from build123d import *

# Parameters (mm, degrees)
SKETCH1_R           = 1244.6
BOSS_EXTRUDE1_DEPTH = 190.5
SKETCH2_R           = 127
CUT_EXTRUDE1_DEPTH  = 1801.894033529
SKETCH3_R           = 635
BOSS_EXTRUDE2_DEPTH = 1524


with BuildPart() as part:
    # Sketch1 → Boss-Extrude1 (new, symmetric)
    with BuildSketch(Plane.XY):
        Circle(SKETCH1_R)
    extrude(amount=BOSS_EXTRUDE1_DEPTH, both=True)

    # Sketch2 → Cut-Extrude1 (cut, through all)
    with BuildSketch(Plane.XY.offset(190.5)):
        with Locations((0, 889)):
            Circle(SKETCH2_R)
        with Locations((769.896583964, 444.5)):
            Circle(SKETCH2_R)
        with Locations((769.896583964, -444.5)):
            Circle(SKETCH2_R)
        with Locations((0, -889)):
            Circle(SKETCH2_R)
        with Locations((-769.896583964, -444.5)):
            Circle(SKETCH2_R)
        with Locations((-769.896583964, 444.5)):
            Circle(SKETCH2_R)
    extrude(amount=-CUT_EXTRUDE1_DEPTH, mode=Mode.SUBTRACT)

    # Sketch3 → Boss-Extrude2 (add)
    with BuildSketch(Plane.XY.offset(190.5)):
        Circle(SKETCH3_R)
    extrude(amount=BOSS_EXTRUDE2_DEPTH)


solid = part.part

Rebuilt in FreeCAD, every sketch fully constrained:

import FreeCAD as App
import Part
import Sketcher
Q = App.Units.Quantity

doc = App.newDocument("Part")
body = doc.addObject("PartDesign::Body", "Body")

sketch1 = body.newObject("Sketcher::SketchObject", "Sketch")
sketch1.AttachmentSupport = (doc.getObject("XY_Plane"), [""])
sketch1.MapMode = "FlatFace"
sketch1.addGeometry(Part.Circle(App.Vector(0, 0, 0), App.Vector(0, 0, 1), 1245), False)
sketch1.addConstraint(Sketcher.Constraint("Coincident", 0, 3, -1, 1))
sketch1.addConstraint(Sketcher.Constraint("Diameter", 0, Q("98 in")))
pad1 = body.newObject("PartDesign::Pad", "Pad")
pad1.Profile = sketch1
pad1.Length = Q("15 in")
pad1.Midplane = True

sketch2 = body.newObject("Sketcher::SketchObject", "Sketch001")
sketch2.AttachmentSupport = (doc.getObject("XY_Plane"), [""])
sketch2.MapMode = "FlatFace"
sketch2.AttachmentOffset = App.Placement(App.Vector(0, 0, 7.5 * 25.4), App.Rotation())
sketch2.addGeometry(Part.Circle(App.Vector(0, 889, 0), App.Vector(0, 0, 1), 127), False)
sketch2.addGeometry(Part.Circle(App.Vector(770, 444, 0), App.Vector(0, 0, 1), 127), False)
sketch2.addGeometry(Part.Circle(App.Vector(770, -444, 0), App.Vector(0, 0, 1), 127), False)
sketch2.addGeometry(Part.Circle(App.Vector(0, -889, 0), App.Vector(0, 0, 1), 127), False)
sketch2.addGeometry(Part.Circle(App.Vector(-770, -444, 0), App.Vector(0, 0, 1), 127), False)
sketch2.addGeometry(Part.Circle(App.Vector(-770, 444, 0), App.Vector(0, 0, 1), 127), False)
sketch2.addConstraint(Sketcher.Constraint("Equal", 0, 1))
sketch2.addConstraint(Sketcher.Constraint("Equal", 1, 2))
sketch2.addConstraint(Sketcher.Constraint("Equal", 2, 3))
sketch2.addConstraint(Sketcher.Constraint("Equal", 3, 4))
sketch2.addConstraint(Sketcher.Constraint("Equal", 4, 5))
sketch2.addConstraint(Sketcher.Constraint("Symmetric", 0, 3, 3, 3, -1, 1))
sketch2.addConstraint(Sketcher.Constraint("Symmetric", 1, 3, 4, 3, -1, 1))
sketch2.addConstraint(Sketcher.Constraint("Symmetric", 2, 3, 5, 3, -1, 1))
sketch2.addConstraint(Sketcher.Constraint("Symmetric", 2, 3, 4, 3, -2))
sketch2.addConstraint(Sketcher.Constraint("PointOnObject", 0, 3, -2))
sketch2.addConstraint(Sketcher.Constraint("Diameter", 0, Q("10 in")))
sketch2.addConstraint(Sketcher.Constraint("DistanceY", -1, 1, 0, 3, Q("35 in")))
sketch2.addConstraint(Sketcher.Constraint("DistanceY", 2, 3, 1, 3, Q("35 in")))
sketch2.addConstraint(Sketcher.Constraint("DistanceX", -1, 1, 1, 3, Q("769.896584 mm")))
pocket1 = body.newObject("PartDesign::Pocket", "Pocket")
pocket1.Profile = sketch2
pocket1.Type = "ThroughAll"

sketch3 = body.newObject("Sketcher::SketchObject", "Sketch002")
sketch3.AttachmentSupport = (doc.getObject("XY_Plane"), [""])
sketch3.MapMode = "FlatFace"
sketch3.AttachmentOffset = App.Placement(App.Vector(0, 0, 7.5 * 25.4), App.Rotation())
sketch3.addGeometry(Part.Circle(App.Vector(0, 0, 0), App.Vector(0, 0, 1), 635), False)
sketch3.addConstraint(Sketcher.Constraint("Coincident", 0, 3, -1, 1))
sketch3.addConstraint(Sketcher.Constraint("Diameter", 0, Q("50 in")))
pad2 = body.newObject("PartDesign::Pad", "Pad001")
pad2.Profile = sketch3
pad2.Length = Q("60 in")

doc.recompute()
